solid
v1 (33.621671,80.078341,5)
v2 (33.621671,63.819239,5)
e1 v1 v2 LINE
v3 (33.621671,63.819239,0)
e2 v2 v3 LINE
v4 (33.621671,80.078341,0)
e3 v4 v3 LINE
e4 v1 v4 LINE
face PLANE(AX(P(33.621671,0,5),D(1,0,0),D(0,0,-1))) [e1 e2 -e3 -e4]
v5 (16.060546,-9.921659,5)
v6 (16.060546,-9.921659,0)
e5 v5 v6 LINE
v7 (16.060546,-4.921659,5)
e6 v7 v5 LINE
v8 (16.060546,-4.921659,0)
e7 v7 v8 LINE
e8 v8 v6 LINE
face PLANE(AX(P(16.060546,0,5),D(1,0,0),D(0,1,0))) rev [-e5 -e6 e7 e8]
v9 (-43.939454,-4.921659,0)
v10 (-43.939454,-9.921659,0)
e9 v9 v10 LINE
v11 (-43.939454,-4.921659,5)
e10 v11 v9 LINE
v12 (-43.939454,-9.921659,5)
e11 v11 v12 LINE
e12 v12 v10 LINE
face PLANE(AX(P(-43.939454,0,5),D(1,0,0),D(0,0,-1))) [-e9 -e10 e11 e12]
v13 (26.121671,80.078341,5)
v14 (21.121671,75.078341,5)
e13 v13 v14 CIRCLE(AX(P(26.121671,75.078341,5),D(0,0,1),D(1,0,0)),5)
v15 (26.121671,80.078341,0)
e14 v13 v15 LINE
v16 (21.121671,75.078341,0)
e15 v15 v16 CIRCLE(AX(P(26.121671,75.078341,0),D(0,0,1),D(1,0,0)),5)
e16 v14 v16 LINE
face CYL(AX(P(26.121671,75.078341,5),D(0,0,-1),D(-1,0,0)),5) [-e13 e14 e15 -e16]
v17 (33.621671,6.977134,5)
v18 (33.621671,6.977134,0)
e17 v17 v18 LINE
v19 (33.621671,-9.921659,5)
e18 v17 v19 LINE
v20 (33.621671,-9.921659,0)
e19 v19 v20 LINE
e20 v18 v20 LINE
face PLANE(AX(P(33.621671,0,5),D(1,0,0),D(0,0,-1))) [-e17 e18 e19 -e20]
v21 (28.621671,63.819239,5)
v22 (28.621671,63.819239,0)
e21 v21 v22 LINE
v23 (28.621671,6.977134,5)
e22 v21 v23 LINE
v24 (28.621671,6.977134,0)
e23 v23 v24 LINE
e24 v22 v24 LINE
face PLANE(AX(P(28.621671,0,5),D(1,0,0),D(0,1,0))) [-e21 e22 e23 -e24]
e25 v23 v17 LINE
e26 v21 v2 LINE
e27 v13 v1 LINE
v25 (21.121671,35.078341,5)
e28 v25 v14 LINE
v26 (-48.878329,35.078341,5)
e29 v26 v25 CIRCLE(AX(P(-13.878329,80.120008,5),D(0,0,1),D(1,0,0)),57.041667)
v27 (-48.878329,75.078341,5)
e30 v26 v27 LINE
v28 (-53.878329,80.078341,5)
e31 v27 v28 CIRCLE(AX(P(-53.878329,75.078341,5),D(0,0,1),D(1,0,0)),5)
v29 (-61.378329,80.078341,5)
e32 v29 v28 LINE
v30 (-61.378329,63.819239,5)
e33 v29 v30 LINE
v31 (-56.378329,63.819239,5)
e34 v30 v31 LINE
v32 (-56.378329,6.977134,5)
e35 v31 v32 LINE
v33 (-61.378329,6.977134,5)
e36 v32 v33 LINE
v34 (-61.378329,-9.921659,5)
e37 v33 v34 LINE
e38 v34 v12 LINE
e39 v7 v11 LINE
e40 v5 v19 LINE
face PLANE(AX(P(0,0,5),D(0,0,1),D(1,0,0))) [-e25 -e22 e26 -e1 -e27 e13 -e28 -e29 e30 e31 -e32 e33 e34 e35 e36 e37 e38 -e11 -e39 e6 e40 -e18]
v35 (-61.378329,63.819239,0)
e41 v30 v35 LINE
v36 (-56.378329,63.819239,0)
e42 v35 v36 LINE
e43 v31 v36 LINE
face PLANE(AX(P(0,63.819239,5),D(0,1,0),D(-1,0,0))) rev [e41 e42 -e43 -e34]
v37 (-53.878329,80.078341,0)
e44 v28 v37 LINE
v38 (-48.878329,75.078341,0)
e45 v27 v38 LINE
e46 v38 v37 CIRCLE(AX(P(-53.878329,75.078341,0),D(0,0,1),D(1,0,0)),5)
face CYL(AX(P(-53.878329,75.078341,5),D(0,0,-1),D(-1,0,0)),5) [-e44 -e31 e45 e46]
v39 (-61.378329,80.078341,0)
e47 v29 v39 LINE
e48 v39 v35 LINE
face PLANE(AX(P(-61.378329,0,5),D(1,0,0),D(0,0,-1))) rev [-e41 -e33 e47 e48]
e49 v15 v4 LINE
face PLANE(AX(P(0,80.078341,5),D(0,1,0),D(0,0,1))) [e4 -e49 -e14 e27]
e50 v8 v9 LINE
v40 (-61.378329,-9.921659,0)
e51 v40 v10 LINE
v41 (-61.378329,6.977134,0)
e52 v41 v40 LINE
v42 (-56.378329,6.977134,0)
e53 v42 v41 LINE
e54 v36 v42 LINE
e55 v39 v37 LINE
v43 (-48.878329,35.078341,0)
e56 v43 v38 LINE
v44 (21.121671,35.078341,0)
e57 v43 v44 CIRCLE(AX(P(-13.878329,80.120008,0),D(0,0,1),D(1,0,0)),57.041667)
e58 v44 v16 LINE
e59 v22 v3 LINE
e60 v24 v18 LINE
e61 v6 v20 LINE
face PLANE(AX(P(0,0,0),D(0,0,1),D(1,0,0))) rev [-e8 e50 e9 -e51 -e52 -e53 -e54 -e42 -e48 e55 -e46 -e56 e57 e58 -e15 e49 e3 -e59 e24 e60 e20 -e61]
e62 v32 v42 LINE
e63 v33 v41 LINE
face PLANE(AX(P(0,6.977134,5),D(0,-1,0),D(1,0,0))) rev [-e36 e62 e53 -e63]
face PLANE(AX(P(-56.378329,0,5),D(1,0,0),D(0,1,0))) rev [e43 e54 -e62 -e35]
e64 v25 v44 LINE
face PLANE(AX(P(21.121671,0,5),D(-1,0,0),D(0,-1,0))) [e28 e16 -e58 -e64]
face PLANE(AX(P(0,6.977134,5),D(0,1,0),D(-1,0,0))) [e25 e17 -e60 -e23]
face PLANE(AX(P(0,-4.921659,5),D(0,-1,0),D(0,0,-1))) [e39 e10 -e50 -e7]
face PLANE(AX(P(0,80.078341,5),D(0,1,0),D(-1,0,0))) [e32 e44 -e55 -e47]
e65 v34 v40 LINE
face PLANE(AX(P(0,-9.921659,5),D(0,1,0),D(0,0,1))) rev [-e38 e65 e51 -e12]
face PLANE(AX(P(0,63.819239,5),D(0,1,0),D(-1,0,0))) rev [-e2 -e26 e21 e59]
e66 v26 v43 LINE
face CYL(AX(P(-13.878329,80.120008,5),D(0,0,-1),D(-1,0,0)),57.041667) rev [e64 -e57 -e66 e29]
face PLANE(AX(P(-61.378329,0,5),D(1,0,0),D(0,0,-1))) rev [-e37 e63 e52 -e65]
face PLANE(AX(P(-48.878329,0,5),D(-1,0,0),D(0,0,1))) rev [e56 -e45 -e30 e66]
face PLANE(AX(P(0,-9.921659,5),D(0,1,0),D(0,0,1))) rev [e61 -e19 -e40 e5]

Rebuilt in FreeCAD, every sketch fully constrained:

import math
import FreeCAD as App
import Part
import Sketcher

V = App.Vector
Q = App.Units.Quantity

doc = App.newDocument("Part")
params = doc.addObject("Spreadsheet::Sheet", "Params")
for row, (alias, value) in enumerate([
    ("sketch1_radius", "5 mm"),
    ("sketch1_width", "5 mm"),
    ("sketch1_width2", "60 mm"),
    ("sketch1_height", "40 mm"),
    ("sketch1_width3", "7.5 mm"),
    ("pad1_length", "5 mm"),
], start=1):
    params.set(f"A{row}", alias)
    params.set(f"B{row}", "=" + value)
    params.setAlias(f"B{row}", alias)

body = doc.addObject("PartDesign::Body", "Body")

# Sketch on XY plane
sketch1 = doc.addObject("Sketcher::SketchObject", "Sketch")
body.addObject(sketch1)
sketch1.AttachmentSupport = (doc.XY_Plane, [""])
sketch1.MapMode = "FlatFace"
sketch1.addGeometry([
    Part.LineSegment(V(-61.4, 63.8, 0), V(-56.4, 63.8, 0)),  # 0
    Part.LineSegment(V(-56.4, 63.8, 0), V(-56.4, 7, 0)),  # 1
    Part.LineSegment(V(-56.4, 7, 0), V(-61.4, 7, 0)),  # 2
    Part.LineSegment(V(-61.4, 7, 0), V(-61.4, -9.9, 0)),  # 3
    Part.LineSegment(V(-61.4, -9.9, 0), V(-43.9, -9.9, 0)),  # 4
    Part.LineSegment(V(-43.9, -9.9, 0), V(-43.9, -4.9, 0)),  # 5
    Part.LineSegment(V(-43.9, -4.9, 0), V(16.1, -4.9, 0)),  # 6
    Part.LineSegment(V(16.1, -4.9, 0), V(16.1, -9.9, 0)),  # 7
    Part.LineSegment(V(16.1, -9.9, 0), V(33.6, -9.9, 0)),  # 8
    Part.LineSegment(V(33.6, -9.9, 0), V(33.6, 7, 0)),  # 9
    Part.LineSegment(V(33.6, 7, 0), V(28.6, 7, 0)),  # 10
    Part.LineSegment(V(28.6, 7, 0), V(28.6, 63.8, 0)),  # 11
    Part.LineSegment(V(28.6, 63.8, 0), V(33.6, 63.8, 0)),  # 12
    Part.LineSegment(V(33.6, 63.8, 0), V(33.6, 80.1, 0)),  # 13
    Part.LineSegment(V(33.6, 80.1, 0), V(26.1, 80.1, 0)),  # 14
    Part.ArcOfCircle(Part.Circle(V(26.1, 75.1, 0), V(0, 0, 1), 5), math.radians(90), math.radians(180)),  # 15
    Part.LineSegment(V(21.1, 75.1, 0), V(21.1, 35.1, 0)),  # 16
    Part.ArcOfCircle(Part.Circle(V(-13.9, 80.1, 0), V(0, 0, 1), 57), math.radians(-128), math.radians(-52)),  # 17
    Part.LineSegment(V(-48.9, 35.1, 0), V(-48.9, 75.1, 0)),  # 18
    Part.ArcOfCircle(Part.Circle(V(-53.9, 75.1, 0), V(0, 0, 1), 5), math.radians(0), math.radians(90)),  # 19
    Part.LineSegment(V(-53.9, 80.1, 0), V(-61.4, 80.1, 0)),  # 20
    Part.LineSegment(V(-61.4, 80.1, 0), V(-61.4, 63.8, 0)),  # 21
], False)
sketch1.addConstraint([
    Sketcher.Constraint("Coincident", 0, 2, 1, 1),
    Sketcher.Constraint("Coincident", 1, 2, 2, 1),
    Sketcher.Constraint("Coincident", 2, 2, 3, 1),
    Sketcher.Constraint("Coincident", 3, 2, 4, 1),
    Sketcher.Constraint("Coincident", 4, 2, 5, 1),
    Sketcher.Constraint("Coincident", 5, 2, 6, 1),
    Sketcher.Constraint("Coincident", 6, 2, 7, 1),
    Sketcher.Constraint("Coincident", 7, 2, 8, 1),
    Sketcher.Constraint("Coincident", 8, 2, 9, 1),
    Sketcher.Constraint("Coincident", 9, 2, 10, 1),
    Sketcher.Constraint("Coincident", 10, 2, 11, 1),
    Sketcher.Constraint("Coincident", 11, 2, 12, 1),
    Sketcher.Constraint("Coincident", 12, 2, 13, 1),
    Sketcher.Constraint("Coincident", 13, 2, 14, 1),
    Sketcher.Constraint("Tangent", 14, 2, 15, 1),
    Sketcher.Constraint("Tangent", 15, 2, 16, 1),
    Sketcher.Constraint("Coincident", 16, 2, 17, 2),
    Sketcher.Constraint("Coincident", 17, 1, 18, 1),
    Sketcher.Constraint("Tangent", 18, 2, 19, 1),
    Sketcher.Constraint("Tangent", 19, 2, 20, 1),
    Sketcher.Constraint("Coincident", 20, 2, 21, 1),
    Sketcher.Constraint("Coincident", 21, 2, 0, 1),
    Sketcher.Constraint("Horizontal", 0),
    Sketcher.Constraint("Vertical", 1),
    Sketcher.Constraint("Horizontal", 2),
    Sketcher.Constraint("Vertical", 3),
    Sketcher.Constraint("Horizontal", 4),
    Sketcher.Constraint("Vertical", 5),
    Sketcher.Constraint("Horizontal", 6),
    Sketcher.Constraint("Vertical", 7),
    Sketcher.Constraint("Horizontal", 8),
    Sketcher.Constraint("Vertical", 9),
    Sketcher.Constraint("Horizontal", 10),
    Sketcher.Constraint("Vertical", 11),
    Sketcher.Constraint("Horizontal", 12),
    Sketcher.Constraint("Vertical", 13),
    Sketcher.Constraint("Horizontal", 14),
    Sketcher.Constraint("Vertical", 16),
    Sketcher.Constraint("Vertical", 18),
    Sketcher.Constraint("Horizontal", 20),
    Sketcher.Constraint("Vertical", 21),
    Sketcher.Constraint("Equal", 15, 19),
    Sketcher.Constraint("Horizontal", 15, 3, 19, 3),
    Sketcher.Constraint("Horizontal", 4, 2, 7, 2),
    Sketcher.Constraint("Horizontal", 2, 2, 9, 2),
    Sketcher.Constraint("Horizontal", 0, 2, 11, 2),
    Sketcher.Constraint("Horizontal", 16, 2, 17, 1),
    Sketcher.Constraint("Vertical", 9, 2, 12, 2),
    Sketcher.Constraint("Vertical", 3, 2, 20, 2),
    Sketcher.Constraint("Equal", 2, 10),
    Sketcher.Constraint("Equal", 14, 20),
    Sketcher.Constraint("Equal", 12, 5),
    Sketcher.Constraint("Radius", 15, Q("5 mm")),
    Sketcher.Constraint("DistanceX", 0, 1, 0, 2, Q("5 mm")),
    Sketcher.Constraint("DistanceX", 6, 1, 6, 2, Q("60 mm")),
    Sketcher.Constraint("DistanceY", 16, 2, 16, 1, Q("40 mm")),
    Sketcher.Constraint("DistanceX", 14, 2, 14, 1, Q("7.5 mm")),
    Sketcher.Constraint("DistanceX", 17, 3, 15, 3, Q("40 mm")),
    Sketcher.Constraint("DistanceY", 3, 2, 19, 3, Q("85 mm")),
    Sketcher.Constraint("Radius", 17, Q("57.041667 mm")),
    Sketcher.Constraint("DistanceX", 4, 1, 4, 2, Q("17.438875 mm")),
    Sketcher.Constraint("DistanceY", 1, 2, 1, 1, Q("56.842105 mm")),
    Sketcher.Constraint("DistanceY", 3, 2, 3, 1, Q("16.898792 mm")),
    Sketcher.Constraint("DistanceX", -1, 1, 15, 3, Q("26.121671 mm")),
    Sketcher.Constraint("DistanceY", -1, 1, 15, 3, Q("75.078341 mm")),
])
sketch1.setExpression("Constraints[52]", "Params.sketch1_radius")
sketch1.setExpression("Constraints[53]", "Params.sketch1_width")
sketch1.setExpression("Constraints[54]", "Params.sketch1_width2")
sketch1.setExpression("Constraints[55]", "Params.sketch1_height")
sketch1.setExpression("Constraints[56]", "Params.sketch1_width3")
pad1 = doc.addObject("PartDesign::Pad", "Pad")
body.addObject(pad1)
pad1.Profile = sketch1
pad1.setExpression("Length", "Params.pad1_length")

doc.recompute()
